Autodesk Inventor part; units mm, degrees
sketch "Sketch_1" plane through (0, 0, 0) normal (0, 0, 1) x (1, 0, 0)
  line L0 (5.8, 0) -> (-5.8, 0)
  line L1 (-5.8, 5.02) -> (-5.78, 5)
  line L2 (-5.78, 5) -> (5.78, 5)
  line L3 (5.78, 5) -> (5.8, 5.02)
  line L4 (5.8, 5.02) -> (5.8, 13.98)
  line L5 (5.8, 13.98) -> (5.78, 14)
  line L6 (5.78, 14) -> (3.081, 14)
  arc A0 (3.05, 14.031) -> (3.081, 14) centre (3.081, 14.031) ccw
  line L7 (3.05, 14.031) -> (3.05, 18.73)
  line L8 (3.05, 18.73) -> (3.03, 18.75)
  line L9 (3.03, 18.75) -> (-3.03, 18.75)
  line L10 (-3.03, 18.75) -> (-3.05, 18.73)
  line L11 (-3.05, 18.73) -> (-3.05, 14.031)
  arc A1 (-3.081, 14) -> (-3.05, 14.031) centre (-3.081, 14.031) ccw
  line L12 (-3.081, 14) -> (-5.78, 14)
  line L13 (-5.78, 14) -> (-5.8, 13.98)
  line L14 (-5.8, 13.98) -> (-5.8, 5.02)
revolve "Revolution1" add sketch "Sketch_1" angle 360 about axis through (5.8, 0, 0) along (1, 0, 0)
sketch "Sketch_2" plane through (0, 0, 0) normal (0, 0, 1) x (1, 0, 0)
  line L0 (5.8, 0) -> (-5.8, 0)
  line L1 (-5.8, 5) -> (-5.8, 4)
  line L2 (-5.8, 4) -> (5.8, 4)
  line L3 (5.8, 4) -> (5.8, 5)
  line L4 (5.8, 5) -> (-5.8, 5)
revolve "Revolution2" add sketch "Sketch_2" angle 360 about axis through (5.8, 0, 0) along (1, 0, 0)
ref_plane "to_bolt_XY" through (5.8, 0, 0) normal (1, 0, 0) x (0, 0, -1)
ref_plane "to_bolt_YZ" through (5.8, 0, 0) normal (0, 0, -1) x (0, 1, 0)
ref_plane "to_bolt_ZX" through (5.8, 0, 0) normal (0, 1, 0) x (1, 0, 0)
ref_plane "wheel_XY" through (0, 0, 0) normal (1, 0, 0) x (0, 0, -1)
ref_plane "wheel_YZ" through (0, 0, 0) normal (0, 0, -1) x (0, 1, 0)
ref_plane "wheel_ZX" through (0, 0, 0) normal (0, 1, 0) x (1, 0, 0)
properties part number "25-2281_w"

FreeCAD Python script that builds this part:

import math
import FreeCAD as App
import Part
import Sketcher

V = App.Vector

doc = App.newDocument("Part")
params = doc.addObject("Spreadsheet::Sheet", "Params")
for row, (alias, value) in enumerate([
    ("sketch1_width", "11.56 mm"),
    ("sketch1_width2", "6.06 mm"),
    ("sketch1_height", "8.96 mm"),
    ("revolution_angle", "360 deg"),
    ("sketch2_height", "1 mm"),
    ("sketch2_width", "11.6 mm"),
    ("revolution2_angle", "360 deg"),
], start=1):
    params.set(f"A{row}", alias)
    params.set(f"B{row}", "=" + value)
    params.setAlias(f"B{row}", alias)

body = doc.addObject("PartDesign::Body", "Body")

# Sketch on XY plane
sketch1 = body.newObject("Sketcher::SketchObject", "Sketch")
sketch1.AttachmentSupport = (doc.getObject("XY_Plane"), [""])
sketch1.MapMode = "FlatFace"
sketch1.addGeometry([
    Part.LineSegment(V(-5.8, 13.98, 0), V(-5.8, 5.02, 0)),  # 0
    Part.LineSegment(V(-5.8, 5.02, 0), V(-5.78, 5, 0)),  # 1
    Part.LineSegment(V(-5.78, 5, 0), V(5.78, 5, 0)),  # 2
    Part.LineSegment(V(5.78, 5, 0), V(5.8, 5.02, 0)),  # 3
    Part.LineSegment(V(5.8, 5.02, 0), V(5.8, 13.98, 0)),  # 4
    Part.LineSegment(V(5.8, 13.98, 0), V(5.78, 14, 0)),  # 5
    Part.LineSegment(V(5.78, 14, 0), V(3.081, 14, 0)),  # 6
    Part.ArcOfCircle(Part.Circle(V(3.081, 14.031, 0), V(0, 0, 1), 0.031), math.radians(180), math.radians(270)),  # 7
    Part.LineSegment(V(3.05, 14.031, 0), V(3.05, 18.73, 0)),  # 8
    Part.LineSegment(V(3.05, 18.73, 0), V(3.03, 18.75, 0)),  # 9
    Part.LineSegment(V(3.03, 18.75, 0), V(-3.03, 18.75, 0)),  # 10
    Part.LineSegment(V(-3.03, 18.75, 0), V(-3.05, 18.73, 0)),  # 11
    Part.LineSegment(V(-3.05, 18.73, 0), V(-3.05, 14.031, 0)),  # 12
    Part.ArcOfCircle(Part.Circle(V(-3.081, 14.031, 0), V(0, 0, 1), 0.031), math.radians(-90), math.radians(0)),  # 13
    Part.LineSegment(V(-3.081, 14, 0), V(-5.78, 14, 0)),  # 14
    Part.LineSegment(V(-5.78, 14, 0), V(-5.8, 13.98, 0)),  # 15
], False)
sketch1.addConstraint([
    Sketcher.Constraint("Coincident", 0, 2, 1, 1),
    Sketcher.Constraint("Coincident", 1, 2, 2, 1),
    Sketcher.Constraint("Coincident", 2, 2, 3, 1),
    Sketcher.Constraint("Coincident", 3, 2, 4, 1),
    Sketcher.Constraint("Coincident", 4, 2, 5, 1),
    Sketcher.Constraint("Coincident", 5, 2, 6, 1),
    Sketcher.Constraint("Tangent", 6, 2, 7, 2),
    Sketcher.Constraint("Tangent", 7, 1, 8, 1),
    Sketcher.Constraint("Coincident", 8, 2, 9, 1),
    Sketcher.Constraint("Coincident", 9, 2, 10, 1),
    Sketcher.Constraint("Coincident", 10, 2, 11, 1),
    Sketcher.Constraint("Coincident", 11, 2, 12, 1),
    Sketcher.Constraint("Tangent", 12, 2, 13, 2),
    Sketcher.Constraint("Tangent", 13, 1, 14, 1),
    Sketcher.Constraint("Coincident", 14, 2, 15, 1),
    Sketcher.Constraint("Coincident", 15, 2, 0, 1),
    Sketcher.Constraint("Vertical", 0),
    Sketcher.Constraint("Horizontal", 2),
    Sketcher.Constraint("Vertical", 4),
    Sketcher.Constraint("Horizontal", 6),
    Sketcher.Constraint("Vertical", 8),
    Sketcher.Constraint("Horizontal", 10),
    Sketcher.Constraint("Vertical", 12),
    Sketcher.Constraint("Horizontal", 14),
    Sketcher.Constraint("Equal", 7, 13),
    Sketcher.Constraint("Symmetric", 7, 3, 13, 3, -2),
    Sketcher.Constraint("Symmetric", 0, 2, 3, 2, -2),
    Sketcher.Constraint("Perpendicular", 1, 3),
    Sketcher.Constraint("Perpendicular", 3, 5),
    Sketcher.Constraint("Parallel", 5, 9),
    Sketcher.Constraint("Perpendicular", 9, 11),
    Sketcher.Constraint("Parallel", 11, 15),
    Sketcher.Constraint("Horizontal", 8, 2, 11, 2),
    Sketcher.Constraint("Horizontal", 4, 2, 15, 2),
    Sketcher.Constraint("Vertical", 2, 2, 5, 2),
    Sketcher.Constraint("Vertical", 1, 2, 14, 2),
    Sketcher.Constraint("Equal", 5, 9),
    Sketcher.Constraint("DistanceY", -1, 1, 1, 2, 5.0),
    Sketcher.Constraint("DistanceY", -1, 1, 5, 2, 14.0),
    Sketcher.Constraint("Radius", 7, 0.031),
    Sketcher.Constraint("DistanceX", 2, 1, 2, 2, 11.56),
    Sketcher.Constraint("DistanceX", 10, 2, 10, 1, 6.06),
    Sketcher.Constraint("DistanceY", 0, 2, 0, 1, 8.96),
    Sketcher.Constraint("DistanceY", 8, 1, 8, 2, 4.699),
])
sketch1.setExpression("Constraints[40]", "Params.sketch1_width")
sketch1.setExpression("Constraints[41]", "Params.sketch1_width2")
sketch1.setExpression("Constraints[42]", "Params.sketch1_height")
revolution = body.newObject("PartDesign::Revolution", "Revolution")
revolution.Profile = sketch1
revolution.ReferenceAxis = (sketch1, ["H_Axis"])
revolution.setExpression("Angle", "Params.revolution_angle")

# Sketch on XY plane
sketch2 = body.newObject("Sketcher::SketchObject", "Sketch001")
sketch2.AttachmentSupport = (doc.getObject("XY_Plane"), [""])
sketch2.MapMode = "FlatFace"
sketch2.addGeometry([
    Part.LineSegment(V(5.8, 5, 0), V(-5.8, 5, 0)),
    Part.LineSegment(V(-5.8, 5, 0), V(-5.8, 4, 0)),
    Part.LineSegment(V(-5.8, 4, 0), V(5.8, 4, 0)),
    Part.LineSegment(V(5.8, 4, 0), V(5.8, 5, 0)),
], False)
sketch2.addConstraint([
    Sketcher.Constraint("Coincident", 0, 2, 1, 1),
    Sketcher.Constraint("Coincident", 1, 2, 2, 1),
    Sketcher.Constraint("Coincident", 2, 2, 3, 1),
    Sketcher.Constraint("Coincident", 3, 2, 0, 1),
    Sketcher.Constraint("Horizontal", 0),
    Sketcher.Constraint("Vertical", 1),
    Sketcher.Constraint("Horizontal", 2),
    Sketcher.Constraint("Vertical", 3),
    Sketcher.Constraint("DistanceY", 1, 2, 1, 1, 1.0),
    Sketcher.Constraint("DistanceX", 0, 2, 0, 1, 11.6),
    Sketcher.Constraint("DistanceY", -1, 1, 0, 2, 5.0),
    Sketcher.Constraint("DistanceX", 0, 2, -1, 1, 5.8),
])
sketch2.setExpression("Constraints[8]", "Params.sketch2_height")
sketch2.setExpression("Constraints[9]", "Params.sketch2_width")
revolution2 = body.newObject("PartDesign::Revolution", "Revolution001")
revolution2.Profile = sketch2
revolution2.ReferenceAxis = (sketch2, ["H_Axis"])
revolution2.setExpression("Angle", "Params.revolution2_angle")

doc.recompute()
